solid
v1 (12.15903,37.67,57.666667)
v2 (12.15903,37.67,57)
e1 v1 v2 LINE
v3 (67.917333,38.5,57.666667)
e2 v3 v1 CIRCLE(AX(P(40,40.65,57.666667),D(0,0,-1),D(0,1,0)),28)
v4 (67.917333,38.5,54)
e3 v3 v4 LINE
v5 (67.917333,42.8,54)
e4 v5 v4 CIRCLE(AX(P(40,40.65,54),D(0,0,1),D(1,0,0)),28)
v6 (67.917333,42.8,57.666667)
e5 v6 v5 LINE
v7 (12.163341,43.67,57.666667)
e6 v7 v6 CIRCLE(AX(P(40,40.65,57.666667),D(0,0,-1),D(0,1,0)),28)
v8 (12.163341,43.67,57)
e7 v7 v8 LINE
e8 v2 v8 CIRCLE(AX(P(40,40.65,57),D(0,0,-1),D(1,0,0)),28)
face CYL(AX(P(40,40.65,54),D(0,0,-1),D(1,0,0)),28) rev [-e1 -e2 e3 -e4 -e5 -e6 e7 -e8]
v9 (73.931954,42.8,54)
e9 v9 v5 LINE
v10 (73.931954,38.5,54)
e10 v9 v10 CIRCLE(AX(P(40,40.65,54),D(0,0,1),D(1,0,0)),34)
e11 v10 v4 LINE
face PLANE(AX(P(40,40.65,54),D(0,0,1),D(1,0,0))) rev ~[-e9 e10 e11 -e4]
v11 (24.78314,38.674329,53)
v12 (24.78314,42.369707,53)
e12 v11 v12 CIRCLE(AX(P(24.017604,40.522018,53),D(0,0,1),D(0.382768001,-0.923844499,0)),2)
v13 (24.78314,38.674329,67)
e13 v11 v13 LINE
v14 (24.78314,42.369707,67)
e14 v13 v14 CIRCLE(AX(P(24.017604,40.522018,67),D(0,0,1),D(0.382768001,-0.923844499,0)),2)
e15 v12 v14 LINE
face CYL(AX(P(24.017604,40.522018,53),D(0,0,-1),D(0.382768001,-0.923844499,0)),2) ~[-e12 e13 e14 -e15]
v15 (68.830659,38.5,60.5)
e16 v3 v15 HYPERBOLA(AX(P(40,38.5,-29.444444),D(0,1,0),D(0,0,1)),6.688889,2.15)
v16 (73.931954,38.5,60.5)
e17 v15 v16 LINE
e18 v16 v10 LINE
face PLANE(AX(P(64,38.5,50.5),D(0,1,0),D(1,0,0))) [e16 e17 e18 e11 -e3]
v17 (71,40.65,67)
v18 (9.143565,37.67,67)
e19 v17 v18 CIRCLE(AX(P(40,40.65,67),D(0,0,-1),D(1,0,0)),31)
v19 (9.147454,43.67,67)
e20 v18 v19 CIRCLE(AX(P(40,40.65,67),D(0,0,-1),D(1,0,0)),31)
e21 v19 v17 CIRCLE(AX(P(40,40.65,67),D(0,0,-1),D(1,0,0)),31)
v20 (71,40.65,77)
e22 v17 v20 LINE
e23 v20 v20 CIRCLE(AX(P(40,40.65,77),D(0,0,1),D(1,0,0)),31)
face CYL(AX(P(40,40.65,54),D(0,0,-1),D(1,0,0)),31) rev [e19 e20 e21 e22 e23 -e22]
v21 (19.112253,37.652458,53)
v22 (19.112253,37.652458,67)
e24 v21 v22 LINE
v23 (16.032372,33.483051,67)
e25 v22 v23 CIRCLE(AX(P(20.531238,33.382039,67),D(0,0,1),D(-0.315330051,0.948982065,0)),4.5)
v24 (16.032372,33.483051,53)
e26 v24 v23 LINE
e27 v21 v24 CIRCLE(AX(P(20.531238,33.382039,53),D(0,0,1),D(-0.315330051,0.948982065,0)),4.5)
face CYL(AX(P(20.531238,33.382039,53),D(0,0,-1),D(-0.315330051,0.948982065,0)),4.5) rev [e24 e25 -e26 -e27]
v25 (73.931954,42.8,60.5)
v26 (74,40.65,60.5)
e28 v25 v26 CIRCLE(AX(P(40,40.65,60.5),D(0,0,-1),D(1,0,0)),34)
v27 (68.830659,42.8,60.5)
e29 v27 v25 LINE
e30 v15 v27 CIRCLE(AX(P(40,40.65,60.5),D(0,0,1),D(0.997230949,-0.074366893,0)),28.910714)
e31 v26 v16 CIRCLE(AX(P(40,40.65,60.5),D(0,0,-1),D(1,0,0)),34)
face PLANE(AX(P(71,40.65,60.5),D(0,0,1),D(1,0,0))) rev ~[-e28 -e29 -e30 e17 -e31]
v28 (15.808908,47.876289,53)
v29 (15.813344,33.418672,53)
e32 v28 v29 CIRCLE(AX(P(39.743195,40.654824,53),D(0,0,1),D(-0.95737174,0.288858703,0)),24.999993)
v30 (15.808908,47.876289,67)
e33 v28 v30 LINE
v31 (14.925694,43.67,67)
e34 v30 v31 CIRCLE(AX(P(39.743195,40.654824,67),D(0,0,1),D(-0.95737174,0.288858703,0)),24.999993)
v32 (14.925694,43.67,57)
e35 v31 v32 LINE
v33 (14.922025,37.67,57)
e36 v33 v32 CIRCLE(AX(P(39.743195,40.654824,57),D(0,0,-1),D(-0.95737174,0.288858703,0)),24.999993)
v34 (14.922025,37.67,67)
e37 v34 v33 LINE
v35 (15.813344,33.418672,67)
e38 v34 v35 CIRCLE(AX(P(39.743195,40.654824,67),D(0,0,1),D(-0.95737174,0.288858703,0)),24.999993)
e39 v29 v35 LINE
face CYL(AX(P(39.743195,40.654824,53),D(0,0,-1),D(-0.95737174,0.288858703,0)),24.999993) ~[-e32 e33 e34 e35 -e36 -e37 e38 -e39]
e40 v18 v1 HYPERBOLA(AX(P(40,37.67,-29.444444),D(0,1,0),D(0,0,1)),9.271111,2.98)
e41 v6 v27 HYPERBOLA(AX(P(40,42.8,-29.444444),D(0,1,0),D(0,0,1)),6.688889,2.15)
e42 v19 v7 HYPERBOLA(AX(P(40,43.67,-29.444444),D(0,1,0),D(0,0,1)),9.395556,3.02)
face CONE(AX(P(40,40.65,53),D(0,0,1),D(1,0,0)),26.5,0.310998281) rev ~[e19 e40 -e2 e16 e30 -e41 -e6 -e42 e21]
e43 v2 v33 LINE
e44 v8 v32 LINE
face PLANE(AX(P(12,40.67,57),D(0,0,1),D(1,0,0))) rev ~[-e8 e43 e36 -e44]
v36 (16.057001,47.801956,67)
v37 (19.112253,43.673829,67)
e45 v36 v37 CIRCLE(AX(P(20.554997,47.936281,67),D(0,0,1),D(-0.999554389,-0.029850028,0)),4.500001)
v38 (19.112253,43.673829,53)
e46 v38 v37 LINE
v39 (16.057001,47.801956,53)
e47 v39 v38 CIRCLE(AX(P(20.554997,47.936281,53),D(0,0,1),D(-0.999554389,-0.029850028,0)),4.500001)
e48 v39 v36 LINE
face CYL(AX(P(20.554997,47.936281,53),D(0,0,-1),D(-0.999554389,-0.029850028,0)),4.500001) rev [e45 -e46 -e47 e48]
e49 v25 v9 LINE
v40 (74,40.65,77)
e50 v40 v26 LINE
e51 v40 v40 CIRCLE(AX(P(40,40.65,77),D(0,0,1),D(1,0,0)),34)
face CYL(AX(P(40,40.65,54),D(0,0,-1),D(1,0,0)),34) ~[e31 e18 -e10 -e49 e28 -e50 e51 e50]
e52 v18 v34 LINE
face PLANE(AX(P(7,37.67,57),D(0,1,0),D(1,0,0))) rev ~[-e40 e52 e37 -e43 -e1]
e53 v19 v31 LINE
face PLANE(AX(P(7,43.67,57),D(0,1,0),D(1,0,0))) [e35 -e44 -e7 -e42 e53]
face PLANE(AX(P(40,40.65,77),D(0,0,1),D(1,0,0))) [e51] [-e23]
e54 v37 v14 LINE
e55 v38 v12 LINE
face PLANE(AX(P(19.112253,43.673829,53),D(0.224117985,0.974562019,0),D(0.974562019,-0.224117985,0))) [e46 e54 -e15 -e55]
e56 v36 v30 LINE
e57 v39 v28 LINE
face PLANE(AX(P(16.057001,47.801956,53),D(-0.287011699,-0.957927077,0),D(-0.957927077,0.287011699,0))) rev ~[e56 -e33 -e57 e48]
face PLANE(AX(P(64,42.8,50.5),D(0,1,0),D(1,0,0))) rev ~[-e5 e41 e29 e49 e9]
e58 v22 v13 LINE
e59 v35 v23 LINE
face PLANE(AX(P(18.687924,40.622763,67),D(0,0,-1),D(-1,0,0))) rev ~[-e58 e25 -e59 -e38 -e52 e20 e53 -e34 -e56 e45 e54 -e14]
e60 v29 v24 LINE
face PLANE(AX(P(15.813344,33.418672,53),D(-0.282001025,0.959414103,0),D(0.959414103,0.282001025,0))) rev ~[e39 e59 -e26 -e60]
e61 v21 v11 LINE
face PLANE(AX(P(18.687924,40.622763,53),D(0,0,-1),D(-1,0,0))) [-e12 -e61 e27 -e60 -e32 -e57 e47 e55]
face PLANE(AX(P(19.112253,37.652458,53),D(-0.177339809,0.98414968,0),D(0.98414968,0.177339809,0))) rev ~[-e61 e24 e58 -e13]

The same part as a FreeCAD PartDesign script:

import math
import FreeCAD as App
import Part
import Sketcher

V = App.Vector


def add_polygon(sketch, points):
    """Adds a closed chain of lines whose ends are joined by coincident constraints."""
    first, n = sketch.GeometryCount, len(points)
    for a, b in zip(points, points[1:] + points[:1]):
        sketch.addGeometry(Part.LineSegment(App.Vector(*a, 0), App.Vector(*b, 0)), False)
    for i in range(n):
        sketch.addConstraint(Sketcher.Constraint("Coincident", first + i, 2, first + (i + 1) % n, 1))

doc = App.newDocument("Part")
body = doc.addObject("PartDesign::Body", "Body")

# Sketch on XY plane
sketch1 = body.newObject("Sketcher::SketchObject", "Sketch")
sketch1.AttachmentSupport = (doc.getObject("XY_Plane"), [""])
sketch1.MapMode = "FlatFace"
sketch1.AttachmentOffset = App.Placement(V(0, 0, 50.5), App.Rotation())
add_polygon(sketch1, [(64, 42.8), (64, 38.5), (78, 38.5), (78, 42.8)])  # lines 0-3
sketch1.addConstraint([
    Sketcher.Constraint("Vertical", 0),
    Sketcher.Constraint("Horizontal", 1),
    Sketcher.Constraint("Vertical", 2),
    Sketcher.Constraint("Horizontal", 3),
    Sketcher.Constraint("DistanceX", 1, 1, 1, 2, 14.0),
    Sketcher.Constraint("DistanceY", 0, 2, 0, 1, 4.3),
    Sketcher.Constraint("DistanceX", -1, 1, 0, 2, 64.0),
    Sketcher.Constraint("DistanceY", -1, 1, 0, 2, 38.5),
])
pad1 = body.newObject("PartDesign::Pad", "Pad")
pad1.Profile = sketch1
pad1.Length = 10
body2 = doc.addObject("PartDesign::Body", "Body001")

# Sketch on XY plane
sketch2 = body2.newObject("Sketcher::SketchObject", "Sketch001")
sketch2.AttachmentSupport = (doc.getObject("XY_Plane001"), [""])
sketch2.MapMode = "FlatFace"
sketch2.AttachmentOffset = App.Placement(V(0, 0, 54), App.Rotation())
sketch2.addGeometry(Part.Circle(V(40, 40.65, 0), V(0, 0, 1), 28), False)
sketch2.addConstraint([
    Sketcher.Constraint("Diameter", 0, 56.0),
    Sketcher.Constraint("DistanceX", -1, 1, 0, 3, 40.0),
    Sketcher.Constraint("DistanceY", -1, 1, 0, 3, 40.65),
])
pad2 = body2.newObject("PartDesign::Pad", "Pad001")
pad2.Profile = sketch2
pad2.Length = 4
body3 = doc.addObject("PartDesign::Body", "Body002")

# Sketch on XZ plane
sketch3 = body3.newObject("Sketcher::SketchObject", "Sketch002")
sketch3.AttachmentSupport = (doc.getObject("XZ_Plane002"), [""])
sketch3.MapMode = "FlatFace"
sketch3.AttachmentOffset = App.Placement(V(0, 0, -40.65), App.Rotation())
add_polygon(sketch3, [(40, 53), (66.5, 53), (71, 67), (40, 67)])  # lines 0-3
sketch3.addGeometry(Part.LineSegment(V(40, 53, 0), V(40, 67, 0)), True)  # axis
sketch3.addConstraint([
    Sketcher.Constraint("Horizontal", 0),
    Sketcher.Constraint("Horizontal", 2),
    Sketcher.Constraint("Vertical", 3),
    Sketcher.Constraint("Vertical", 4),
    Sketcher.Constraint("Coincident", 4, 1, 3, 2),
    Sketcher.Constraint("Horizontal", 1, 2, 4, 2),
    Sketcher.Constraint("DistanceX", 2, 2, 2, 1, 31.0),
    Sketcher.Constraint("DistanceY", 3, 2, 3, 1, 14.0),
    Sketcher.Constraint("DistanceX", 0, 1, 0, 2, 26.5),
    Sketcher.Constraint("DistanceY", -1, 1, 0, 2, 53.0),
    Sketcher.Constraint("DistanceX", -1, 1, 1, 2, 71.0),
])
revolution = body3.newObject("PartDesign::Revolution", "Revolution")
revolution.Profile = sketch3
revolution.ReferenceAxis = (sketch3, ["Axis0"])
revolution.Angle = 360
body4 = doc.addObject("PartDesign::Body", "Body003")

# Sketch on XY plane
sketch4 = body4.newObject("Sketcher::SketchObject", "Sketch003")
sketch4.AttachmentSupport = (doc.getObject("XY_Plane003"), [""])
sketch4.MapMode = "FlatFace"
sketch4.AttachmentOffset = App.Placement(V(0, 0, 54), App.Rotation())
sketch4.addGeometry(Part.Circle(V(40, 40.65, 0), V(0, 0, 1), 34), False)
sketch4.addConstraint([
    Sketcher.Constraint("Diameter", 0, 68.0),
    Sketcher.Constraint("DistanceX", -1, 1, 0, 3, 40.0),
    Sketcher.Constraint("DistanceY", -1, 1, 0, 3, 40.65),
])
pad3 = body4.newObject("PartDesign::Pad", "Pad002")
pad3.Profile = sketch4
pad3.Length = 13
body5 = doc.addObject("PartDesign::Body", "Body004")

# Sketch on XY plane
sketch5 = body5.newObject("Sketcher::SketchObject", "Sketch004")
sketch5.AttachmentSupport = (doc.getObject("XY_Plane004"), [""])
sketch5.MapMode = "FlatFace"
sketch5.AttachmentOffset = App.Placement(V(0, 0, 54), App.Rotation())
sketch5.addGeometry(Part.Circle(V(40, 39.2, 0), V(0, 0, 1), 25), False)
sketch5.addConstraint([
    Sketcher.Constraint("Diameter", 0, 50.0),
    Sketcher.Constraint("DistanceX", -1, 1, 0, 3, 40.0),
    Sketcher.Constraint("DistanceY", -1, 1, 0, 3, 39.2),
])
pad4 = body5.newObject("PartDesign::Pad", "Pad003")
pad4.Profile = sketch5
pad4.Length = 13
body6 = doc.addObject("PartDesign::Body", "Body005")

# Sketch on XY plane
sketch6 = body6.newObject("Sketcher::SketchObject", "Sketch005")
sketch6.AttachmentSupport = (doc.getObject("XY_Plane005"), [""])
sketch6.MapMode = "FlatFace"
sketch6.AttachmentOffset = App.Placement(V(0, 0, 54), App.Rotation())
sketch6.addGeometry([
    Part.Circle(V(40, 40.65, 0), V(0, 0, 1), 34),
    Part.Circle(V(40, 40.65, 0), V(0, 0, 1), 31),
], False)
sketch6.addConstraint([
    Sketcher.Constraint("Coincident", 1, 3, 0, 3),
    Sketcher.Constraint("Diameter", 0, 68.0),
    Sketcher.Constraint("Diameter", 1, 62.0),
    Sketcher.Constraint("DistanceX", -1, 1, 0, 3, 40.0),
    Sketcher.Constraint("DistanceY", -1, 1, 0, 3, 40.65),
])
pad5 = body6.newObject("PartDesign::Pad", "Pad004")
pad5.Profile = sketch6
pad5.Length = 23
doc.recompute()

boolean = body6.newObject("PartDesign::Boolean", "Boolean")
boolean.Type = "Fuse"
boolean.addObjects([body4])
doc.recompute()

boolean2 = body6.newObject("PartDesign::Boolean", "Boolean001")
boolean2.Type = "Fuse"
boolean2.addObjects([body5])
doc.recompute()

boolean3 = body6.newObject("PartDesign::Boolean", "Boolean002")
boolean3.Type = "Cut"
boolean3.addObjects([body3])
doc.recompute()

boolean4 = body6.newObject("PartDesign::Boolean", "Boolean003")
boolean4.Type = "Cut"
boolean4.addObjects([body2])
body7 = doc.addObject("PartDesign::Body", "Body006")

# Sketch on XY plane
sketch7 = body7.newObject("Sketcher::SketchObject", "Sketch006")
sketch7.AttachmentSupport = (doc.getObject("XY_Plane006"), [""])
sketch7.MapMode = "FlatFace"
sketch7.AttachmentOffset = App.Placement(V(0, 0, 65), App.Rotation())
sketch7.addGeometry([
    Part.ArcOfCircle(Part.Circle(V(20.554997, 46.436281, 0), V(0, 0, 1), 4.500001), math.radians(-178.289465), math.radians(-108.699796)),  # 0
    Part.LineSegment(V(16.057001, 46.301956, 0), V(15.808908, 46.376289, 0)),  # 1
    Part.ArcOfCircle(Part.Circle(V(39.743195, 39.154824, 0), V(0, 0, 1), 24.999993), math.radians(163.210359), math.radians(196.8248)),  # 2
    Part.LineSegment(V(15.813344, 31.918672, 0), V(16.032372, 31.983051, 0)),  # 3
    Part.ArcOfCircle(Part.Circle(V(20.531238, 31.882039, 0), V(0, 0, 1), 4.5), math.radians(108.38074), math.radians(178.713762)),  # 4
    Part.LineSegment(V(19.112253, 36.152458, 0), V(24.78314, 37.174329, 0)),  # 5
    Part.ArcOfCircle(Part.Circle(V(24.017604, 39.022018, 0), V(0, 0, 1), 2), math.radians(-67.494755), math.radians(67.494755)),  # 6
    Part.LineSegment(V(24.78314, 40.869707, 0), V(19.112253, 42.173829, 0)),  # 7
], False)
sketch7.addConstraint([
    Sketcher.Constraint("Coincident", 0, 1, 1, 1),
    Sketcher.Constraint("Coincident", 1, 2, 2, 1),
    Sketcher.Constraint("Coincident", 2, 2, 3, 1),
    Sketcher.Constraint("Coincident", 3, 2, 4, 2),
    Sketcher.Constraint("Coincident", 4, 1, 5, 1),
    Sketcher.Constraint("Coincident", 5, 2, 6, 1),
    Sketcher.Constraint("Coincident", 6, 2, 7, 1),
    Sketcher.Constraint("Coincident", 7, 2, 0, 2),
    Sketcher.Constraint("Radius", 6, 2.0),
    Sketcher.Constraint("Radius", 0, 4.500001),
    Sketcher.Constraint("Radius", 4, 4.5),
    Sketcher.Constraint("DistanceX", -1, 1, 0, 1, 16.057001),
    Sketcher.Constraint("Radius", 2, 24.999993),
    Sketcher.Constraint("DistanceX", 4, 3, 5, 2, 4.251902),
    Sketcher.Constraint("DistanceX", 4, 3, 6, 2, 4.251902),
    Sketcher.Constraint("Distance", 1, 0.258989),
    Sketcher.Constraint("Distance", 5, 5.76222),
    Sketcher.Constraint("Distance", 7, 5.818908),
    Sketcher.Constraint("DistanceY", -1, 1, 0, 3, 46.436281),
    Sketcher.Constraint("DistanceX", -1, 1, 4, 3, 20.531238),
    Sketcher.Constraint("DistanceY", -1, 1, 4, 3, 31.882039),
    Sketcher.Constraint("DistanceY", -1, 1, 6, 3, 39.022018),
    Sketcher.Constraint("DistanceX", -1, 1, 1, 2, 15.808908),
    Sketcher.Constraint("DistanceY", -1, 1, 1, 2, 46.376289),
    Sketcher.Constraint("DistanceY", -1, 1, 2, 2, 31.918672),
    Sketcher.Constraint("DistanceX", -1, 1, 3, 2, 16.032372),
    Sketcher.Constraint("DistanceY", -1, 1, 5, 2, 37.174329),
    Sketcher.Constraint("DistanceX", 6, 3, 2, 3, 15.725591),
])
pad6 = body7.newObject("PartDesign::Pad", "Pad005")
pad6.Profile = sketch7
pad6.Length = 14
body8 = doc.addObject("PartDesign::Body", "Body007")
doc.recompute()

body7.Placement = App.Placement(V(0, 0, 7), App.Rotation(V(0, 0, 1), 0))
boolean5 = body8.newObject("PartDesign::Boolean", "Boolean004")
boolean5.Type = "Fuse"
boolean5.addObjects([body7])
body9 = doc.addObject("PartDesign::Body", "Body008")

# Sketch on XY plane
sketch8 = body9.newObject("Sketcher::SketchObject", "Sketch007")
sketch8.AttachmentSupport = (doc.getObject("XY_Plane008"), [""])
sketch8.MapMode = "FlatFace"
sketch8.AttachmentOffset = App.Placement(V(0, 0, 76), App.Rotation())
add_polygon(sketch8, [(7, 42.17), (7, 36.17), (17, 36.17), (17, 42.17)])  # lines 0-3
sketch8.addConstraint([
    Sketcher.Constraint("Vertical", 0),
    Sketcher.Constraint("Horizontal", 1),
    Sketcher.Constraint("Vertical", 2),
    Sketcher.Constraint("Horizontal", 3),
    Sketcher.Constraint("DistanceX", 1, 1, 1, 2, 10.0),
    Sketcher.Constraint("DistanceY", 0, 2, 0, 1, 6.0),
    Sketcher.Constraint("DistanceX", -1, 1, 0, 2, 7.0),
    Sketcher.Constraint("DistanceY", -1, 1, 0, 2, 36.17),
])
pad7 = body9.newObject("PartDesign::Pad", "Pad006")
pad7.Profile = sketch8
pad7.Length = 10
doc.recompute()

boolean6 = body9.newObject("PartDesign::Boolean", "Boolean005")
boolean6.Type = "Fuse"
boolean6.addObjects([body8])
body10 = doc.addObject("PartDesign::Body", "Body009")
doc.recompute()

body9.Placement = App.Placement(V(0, 1.5, -19), App.Rotation(V(0, 0, 1), 0))
boolean7 = body10.newObject("PartDesign::Boolean", "Boolean006")
boolean7.Type = "Fuse"
boolean7.addObjects([body9])
doc.recompute()

boolean8 = body10.newObject("PartDesign::Boolean", "Boolean007")
boolean8.Type = "Fuse"
boolean8.addObjects([body6])
doc.recompute()

boolean9 = body10.newObject("PartDesign::Boolean", "Boolean008")
boolean9.Type = "Cut"
boolean9.addObjects([body])

doc.recompute()
